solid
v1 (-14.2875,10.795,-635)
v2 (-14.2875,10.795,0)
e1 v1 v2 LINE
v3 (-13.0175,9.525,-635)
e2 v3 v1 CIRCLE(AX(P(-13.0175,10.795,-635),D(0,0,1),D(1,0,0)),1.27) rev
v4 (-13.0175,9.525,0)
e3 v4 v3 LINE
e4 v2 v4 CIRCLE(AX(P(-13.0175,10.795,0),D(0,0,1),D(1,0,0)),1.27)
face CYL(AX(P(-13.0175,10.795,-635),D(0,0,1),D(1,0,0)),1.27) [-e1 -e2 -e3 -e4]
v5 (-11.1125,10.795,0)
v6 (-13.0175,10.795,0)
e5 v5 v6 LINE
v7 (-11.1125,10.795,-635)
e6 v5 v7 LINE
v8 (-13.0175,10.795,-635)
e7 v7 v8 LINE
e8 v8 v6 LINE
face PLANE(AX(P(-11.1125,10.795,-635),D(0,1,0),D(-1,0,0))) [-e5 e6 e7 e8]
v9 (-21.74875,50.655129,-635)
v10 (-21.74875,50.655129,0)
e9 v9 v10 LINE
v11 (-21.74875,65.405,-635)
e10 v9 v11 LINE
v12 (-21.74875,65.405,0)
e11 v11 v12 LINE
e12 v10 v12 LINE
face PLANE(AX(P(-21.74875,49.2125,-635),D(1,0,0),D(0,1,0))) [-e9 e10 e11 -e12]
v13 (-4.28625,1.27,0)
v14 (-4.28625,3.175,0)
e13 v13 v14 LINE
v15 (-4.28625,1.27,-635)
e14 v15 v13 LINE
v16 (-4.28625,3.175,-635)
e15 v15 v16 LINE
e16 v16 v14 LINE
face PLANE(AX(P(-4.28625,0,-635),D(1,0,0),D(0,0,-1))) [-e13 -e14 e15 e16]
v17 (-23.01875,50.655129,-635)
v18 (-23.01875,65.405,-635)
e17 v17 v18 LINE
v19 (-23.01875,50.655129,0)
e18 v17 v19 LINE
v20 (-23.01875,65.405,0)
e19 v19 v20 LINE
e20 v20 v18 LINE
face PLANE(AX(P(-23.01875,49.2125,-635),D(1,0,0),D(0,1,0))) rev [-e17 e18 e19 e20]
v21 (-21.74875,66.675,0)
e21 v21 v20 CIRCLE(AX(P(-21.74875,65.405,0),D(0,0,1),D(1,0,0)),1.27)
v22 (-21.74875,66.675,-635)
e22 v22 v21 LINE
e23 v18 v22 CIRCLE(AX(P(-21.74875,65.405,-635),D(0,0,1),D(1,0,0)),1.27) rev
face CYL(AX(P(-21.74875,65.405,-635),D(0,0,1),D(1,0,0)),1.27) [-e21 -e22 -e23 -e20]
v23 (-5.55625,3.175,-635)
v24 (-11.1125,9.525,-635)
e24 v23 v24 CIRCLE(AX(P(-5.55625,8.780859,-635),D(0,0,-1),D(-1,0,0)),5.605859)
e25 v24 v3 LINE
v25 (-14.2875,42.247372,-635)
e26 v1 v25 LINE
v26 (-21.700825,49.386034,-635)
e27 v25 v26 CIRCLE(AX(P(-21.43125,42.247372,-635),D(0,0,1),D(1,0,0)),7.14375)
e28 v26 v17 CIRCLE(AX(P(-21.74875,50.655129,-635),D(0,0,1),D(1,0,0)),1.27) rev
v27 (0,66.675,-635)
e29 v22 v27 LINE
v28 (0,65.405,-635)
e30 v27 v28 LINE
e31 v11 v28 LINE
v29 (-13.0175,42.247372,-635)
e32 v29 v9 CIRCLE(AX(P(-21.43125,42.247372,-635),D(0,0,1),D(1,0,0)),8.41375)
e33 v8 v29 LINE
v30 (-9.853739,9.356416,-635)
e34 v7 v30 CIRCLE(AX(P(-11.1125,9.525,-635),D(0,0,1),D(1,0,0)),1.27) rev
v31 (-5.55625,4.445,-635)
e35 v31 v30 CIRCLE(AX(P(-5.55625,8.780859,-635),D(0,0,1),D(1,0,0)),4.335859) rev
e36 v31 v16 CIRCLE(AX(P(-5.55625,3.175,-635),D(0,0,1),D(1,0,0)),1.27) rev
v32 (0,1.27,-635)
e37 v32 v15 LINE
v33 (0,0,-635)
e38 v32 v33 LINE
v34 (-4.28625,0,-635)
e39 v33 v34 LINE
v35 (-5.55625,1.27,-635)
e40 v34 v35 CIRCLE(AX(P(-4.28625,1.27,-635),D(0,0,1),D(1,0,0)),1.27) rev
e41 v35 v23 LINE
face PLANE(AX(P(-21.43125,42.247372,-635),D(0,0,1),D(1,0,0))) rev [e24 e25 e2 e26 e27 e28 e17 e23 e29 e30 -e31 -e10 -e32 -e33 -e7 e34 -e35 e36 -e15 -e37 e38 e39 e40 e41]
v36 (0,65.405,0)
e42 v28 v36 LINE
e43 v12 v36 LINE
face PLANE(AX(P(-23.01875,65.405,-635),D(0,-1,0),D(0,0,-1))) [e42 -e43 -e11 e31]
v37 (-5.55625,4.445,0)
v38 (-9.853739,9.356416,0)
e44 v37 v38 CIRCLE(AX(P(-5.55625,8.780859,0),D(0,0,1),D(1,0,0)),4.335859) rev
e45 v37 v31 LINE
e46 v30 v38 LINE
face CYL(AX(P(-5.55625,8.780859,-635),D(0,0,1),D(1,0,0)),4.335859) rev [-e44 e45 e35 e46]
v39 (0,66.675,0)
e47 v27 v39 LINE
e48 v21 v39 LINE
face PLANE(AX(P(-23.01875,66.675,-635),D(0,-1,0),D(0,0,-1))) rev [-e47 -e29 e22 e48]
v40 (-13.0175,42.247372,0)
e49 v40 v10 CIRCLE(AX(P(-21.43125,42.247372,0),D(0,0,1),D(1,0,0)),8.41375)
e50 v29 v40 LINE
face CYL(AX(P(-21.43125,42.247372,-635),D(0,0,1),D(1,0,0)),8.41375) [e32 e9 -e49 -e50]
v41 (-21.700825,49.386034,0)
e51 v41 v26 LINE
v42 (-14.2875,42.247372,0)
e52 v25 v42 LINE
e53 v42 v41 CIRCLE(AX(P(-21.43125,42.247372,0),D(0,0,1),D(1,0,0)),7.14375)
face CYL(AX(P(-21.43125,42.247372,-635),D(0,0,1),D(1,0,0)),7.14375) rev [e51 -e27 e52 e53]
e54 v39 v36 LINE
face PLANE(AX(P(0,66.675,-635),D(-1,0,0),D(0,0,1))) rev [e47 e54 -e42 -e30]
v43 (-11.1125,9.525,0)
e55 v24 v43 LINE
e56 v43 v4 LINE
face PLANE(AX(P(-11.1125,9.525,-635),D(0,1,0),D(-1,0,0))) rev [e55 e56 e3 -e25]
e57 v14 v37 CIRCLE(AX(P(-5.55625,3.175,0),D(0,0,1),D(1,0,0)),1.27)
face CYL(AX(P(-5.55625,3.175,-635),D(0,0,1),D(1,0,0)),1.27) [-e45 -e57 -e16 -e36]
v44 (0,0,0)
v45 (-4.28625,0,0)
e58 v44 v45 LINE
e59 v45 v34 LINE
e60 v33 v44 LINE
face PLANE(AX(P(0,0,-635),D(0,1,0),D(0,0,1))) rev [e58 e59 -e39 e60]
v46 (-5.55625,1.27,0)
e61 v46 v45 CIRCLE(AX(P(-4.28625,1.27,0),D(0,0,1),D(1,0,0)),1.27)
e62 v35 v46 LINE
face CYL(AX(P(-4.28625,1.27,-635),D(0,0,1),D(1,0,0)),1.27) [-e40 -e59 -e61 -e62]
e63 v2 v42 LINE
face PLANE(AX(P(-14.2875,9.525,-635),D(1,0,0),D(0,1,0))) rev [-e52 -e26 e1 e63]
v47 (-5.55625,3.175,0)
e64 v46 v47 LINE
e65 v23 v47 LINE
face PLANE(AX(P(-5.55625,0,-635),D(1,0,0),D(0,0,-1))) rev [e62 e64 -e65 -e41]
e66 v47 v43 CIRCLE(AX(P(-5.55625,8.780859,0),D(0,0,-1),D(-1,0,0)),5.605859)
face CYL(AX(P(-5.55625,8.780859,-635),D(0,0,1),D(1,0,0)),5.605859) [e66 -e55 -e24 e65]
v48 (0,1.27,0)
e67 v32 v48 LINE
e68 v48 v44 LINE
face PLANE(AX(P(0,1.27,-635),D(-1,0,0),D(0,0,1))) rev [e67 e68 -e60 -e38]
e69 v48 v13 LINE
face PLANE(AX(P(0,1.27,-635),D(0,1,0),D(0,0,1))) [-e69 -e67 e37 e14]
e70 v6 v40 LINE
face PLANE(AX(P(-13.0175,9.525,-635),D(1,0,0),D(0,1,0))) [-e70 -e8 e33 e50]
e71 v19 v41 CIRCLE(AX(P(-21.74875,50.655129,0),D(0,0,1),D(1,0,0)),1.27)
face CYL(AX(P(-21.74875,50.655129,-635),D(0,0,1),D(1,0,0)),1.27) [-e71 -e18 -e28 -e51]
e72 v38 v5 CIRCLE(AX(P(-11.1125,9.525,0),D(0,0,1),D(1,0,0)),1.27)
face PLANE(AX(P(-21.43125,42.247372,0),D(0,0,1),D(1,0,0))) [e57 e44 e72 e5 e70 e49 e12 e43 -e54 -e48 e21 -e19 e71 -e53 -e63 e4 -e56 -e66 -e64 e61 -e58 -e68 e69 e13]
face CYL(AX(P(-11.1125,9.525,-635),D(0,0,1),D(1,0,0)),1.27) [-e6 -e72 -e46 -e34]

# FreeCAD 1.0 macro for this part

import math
import FreeCAD as App
import Part
import Sketcher

V = App.Vector
Q = App.Units.Quantity


def edges_at(feature, points):
    """Names of the edges that pass closest to the given points."""
    edges = feature.Shape.Edges
    near = lambda p: min(range(len(edges)), key=lambda i: edges[i].distToShape(Part.Vertex(*p))[0])
    return sorted({f"Edge{near(p) + 1}" for p in points})

doc = App.newDocument("Part")
params = doc.addObject("Spreadsheet::Sheet", "Params")
for row, (alias, value) in enumerate([
    ("sketch1_radius", "0.28125 in"),
    ("sketch1_height", "0.05 in"),
    ("sketch1_width", "0.21875 in"),
    ("sketch1_width2", "0.90625 in"),
    ("sketch1_width3", "0.125 in"),
    ("pad1_length", "25 in"),
    ("fillet_radius", "0.05 in"),
], start=1):
    params.set(f"A{row}", alias)
    params.set(f"B{row}", "=" + value)
    params.setAlias(f"B{row}", alias)

body = doc.addObject("PartDesign::Body", "Body")

# Sketch on XY plane
sketch1 = body.newObject("Sketcher::SketchObject", "Sketch")
sketch1.AttachmentSupport = (doc.getObject("XY_Plane"), [""])
sketch1.MapMode = "FlatFace"
sketch1.addGeometry(Part.LineSegment(V(-5.6, 0, 0), V(0, 0, 0)), False)
sketch1.addGeometry(Part.LineSegment(V(0, 0, 0), V(0, 1.3, 0)), False)
sketch1.addGeometry(Part.LineSegment(V(0, 1.3, 0), V(-4.3, 1.3, 0)), False)
sketch1.addGeometry(Part.LineSegment(V(-4.3, 1.3, 0), V(-4.3, 4.6, 0)), False)
sketch1.addGeometry(Part.ArcOfCircle(Part.Circle(V(-5.6, 8.8, 0), V(0, 0, 1), 4.3), math.radians(152), math.radians(287)), False)
sketch1.addGeometry(Part.LineSegment(V(-9.4, 10.8, 0), V(-13, 10.8, 0)), False)
sketch1.addGeometry(Part.LineSegment(V(-13, 10.8, 0), V(-13, 42.2, 0)), False)
sketch1.addGeometry(Part.ArcOfCircle(Part.Circle(V(-21.4, 42.2, 0), V(0, 0, 1), 8.4), math.radians(0), math.radians(92)), False)
sketch1.addGeometry(Part.LineSegment(V(-21.7, 50.7, 0), V(-21.7, 65.4, 0)), False)
sketch1.addGeometry(Part.LineSegment(V(-21.7, 65.4, 0), V(0, 65.4, 0)), False)
sketch1.addGeometry(Part.LineSegment(V(0, 65.4, 0), V(0, 66.7, 0)), False)
sketch1.addGeometry(Part.LineSegment(V(0, 66.7, 0), V(-23, 66.7, 0)), False)
sketch1.addGeometry(Part.LineSegment(V(-23, 66.7, 0), V(-23, 49.2, 0)), False)
sketch1.addGeometry(Part.ArcOfCircle(Part.Circle(V(-21.4, 42.2, 0), V(0, 0, 1), 7.1), math.radians(0), math.radians(103)), False)
sketch1.addGeometry(Part.LineSegment(V(-14.3, 42.2, 0), V(-14.3, 9.5, 0)), False)
sketch1.addGeometry(Part.LineSegment(V(-14.3, 9.5, 0), V(-11.1, 9.5, 0)), False)
sketch1.addGeometry(Part.ArcOfCircle(Part.Circle(V(-5.6, 8.8, 0), V(0, 0, 1), 5.6), math.radians(172), math.radians(270)), False)
sketch1.addGeometry(Part.LineSegment(V(-5.6, 3.2, 0), V(-5.6, 0, 0)), False)
sketch1.addConstraint(Sketcher.Constraint("Coincident", 0, 2, 1, 1))
sketch1.addConstraint(Sketcher.Constraint("Coincident", 1, 2, 2, 1))
sketch1.addConstraint(Sketcher.Constraint("Coincident", 2, 2, 3, 1))
sketch1.addConstraint(Sketcher.Constraint("Coincident", 3, 2, 4, 2))
sketch1.addConstraint(Sketcher.Constraint("Coincident", 4, 1, 5, 1))
sketch1.addConstraint(Sketcher.Constraint("Coincident", 5, 2, 6, 1))
sketch1.addConstraint(Sketcher.Constraint("Tangent", 6, 2, 7, 1))
sketch1.addConstraint(Sketcher.Constraint("Coincident", 7, 2, 8, 1))
sketch1.addConstraint(Sketcher.Constraint("Coincident", 8, 2, 9, 1))
sketch1.addConstraint(Sketcher.Constraint("Coincident", 9, 2, 10, 1))
sketch1.addConstraint(Sketcher.Constraint("Coincident", 10, 2, 11, 1))
sketch1.addConstraint(Sketcher.Constraint("Coincident", 11, 2, 12, 1))
sketch1.addConstraint(Sketcher.Constraint("Coincident", 12, 2, 13, 2))
sketch1.addConstraint(Sketcher.Constraint("Tangent", 13, 1, 14, 1))
sketch1.addConstraint(Sketcher.Constraint("Coincident", 14, 2, 15, 1))
sketch1.addConstraint(Sketcher.Constraint("Coincident", 15, 2, 16, 1))
sketch1.addConstraint(Sketcher.Constraint("Coincident", 16, 2, 17, 1))
sketch1.addConstraint(Sketcher.Constraint("Coincident", 17, 2, 0, 1))
sketch1.addConstraint(Sketcher.Constraint("Horizontal", 0))
sketch1.addConstraint(Sketcher.Constraint("Vertical", 1))
sketch1.addConstraint(Sketcher.Constraint("Horizontal", 2))
sketch1.addConstraint(Sketcher.Constraint("Vertical", 3))
sketch1.addConstraint(Sketcher.Constraint("Horizontal", 5))
sketch1.addConstraint(Sketcher.Constraint("Vertical", 6))
sketch1.addConstraint(Sketcher.Constraint("Vertical", 8))
sketch1.addConstraint(Sketcher.Constraint("Horizontal", 9))
sketch1.addConstraint(Sketcher.Constraint("Vertical", 10))
sketch1.addConstraint(Sketcher.Constraint("Horizontal", 11))
sketch1.addConstraint(Sketcher.Constraint("Vertical", 12))
sketch1.addConstraint(Sketcher.Constraint("Vertical", 14))
sketch1.addConstraint(Sketcher.Constraint("Horizontal", 15))
sketch1.addConstraint(Sketcher.Constraint("Vertical", 17))
sketch1.addConstraint(Sketcher.Constraint("Coincident", 0, 2, -1, 1))
sketch1.addConstraint(Sketcher.Constraint("Coincident", 13, 3, 7, 3))
sketch1.addConstraint(Sketcher.Constraint("Coincident", 16, 3, 4, 3))
sketch1.addConstraint(Sketcher.Constraint("PointOnObject", 9, 2, -2))
sketch1.addConstraint(Sketcher.Constraint("Vertical", 4, 3, 16, 2))
sketch1.addConstraint(Sketcher.Constraint("Equal", 1, 10))
sketch1.addConstraint(Sketcher.Constraint("Equal", 15, 17))
sketch1.addConstraint(Sketcher.Constraint("Radius", 13, Q("0.28125 in")))
sketch1.addConstraint(Sketcher.Constraint("DistanceY", 1, 1, 1, 2, Q("0.05 in")))
sketch1.addConstraint(Sketcher.Constraint("DistanceX", 0, 1, 0, 2, Q("0.21875 in")))
sketch1.addConstraint(Sketcher.Constraint("DistanceX", 11, 2, 11, 1, Q("0.90625 in")))
sketch1.addConstraint(Sketcher.Constraint("DistanceX", 15, 1, 15, 2, Q("0.125 in")))
sketch1.addConstraint(Sketcher.Constraint("DistanceY", 12, 2, 12, 1, Q("0.6875 in")))
sketch1.addConstraint(Sketcher.Constraint("DistanceX", 16, 3, 2, 2, Q("0.05 in")))
sketch1.addConstraint(Sketcher.Constraint("DistanceY", 5, 2, 8, 2, Q("2.15 in")))
sketch1.addConstraint(Sketcher.Constraint("DistanceX", 11, 2, 8, 2, Q("0.05 in")))
sketch1.addConstraint(Sketcher.Constraint("DistanceX", 13, 1, 6, 2, Q("0.05 in")))
sketch1.addConstraint(Sketcher.Constraint("DistanceY", 14, 2, 5, 2, Q("0.05 in")))
sketch1.addConstraint(Sketcher.Constraint("DistanceX", 7, 3, -1, 1, Q("0.84375 in")))
sketch1.addConstraint(Sketcher.Constraint("DistanceY", -1, 1, 4, 1, Q("0.425 in")))
sketch1.addConstraint(Sketcher.Constraint("Radius", 4, Q("4.335859 mm")))
sketch1.setExpression("Constraints[39]", "Params.sketch1_radius")
sketch1.setExpression("Constraints[40]", "Params.sketch1_height")
sketch1.setExpression("Constraints[41]", "Params.sketch1_width")
sketch1.setExpression("Constraints[42]", "Params.sketch1_width2")
sketch1.setExpression("Constraints[43]", "Params.sketch1_width3")
pad1 = body.newObject("PartDesign::Pad", "Pad")
pad1.Profile = sketch1
pad1.setExpression("Length", "Params.pad1_length")
pad1.Reversed = True
doc.recompute()

fillet = body.newObject("PartDesign::Fillet", "Fillet")
fillet.Base = (pad1, edges_at(pad1, [
    (-9.396, 10.795, -317.5),
    (-4.286, 4.635, -317.5),
    (-5.556, 0, -317.5),
    (-14.287, 9.525, -317.5),
    (-23.019, 49.212, -317.5),
    (-23.019, 66.675, -317.5),
]))
fillet.setExpression("Radius", "Params.fillet_radius")

doc.recompute()
